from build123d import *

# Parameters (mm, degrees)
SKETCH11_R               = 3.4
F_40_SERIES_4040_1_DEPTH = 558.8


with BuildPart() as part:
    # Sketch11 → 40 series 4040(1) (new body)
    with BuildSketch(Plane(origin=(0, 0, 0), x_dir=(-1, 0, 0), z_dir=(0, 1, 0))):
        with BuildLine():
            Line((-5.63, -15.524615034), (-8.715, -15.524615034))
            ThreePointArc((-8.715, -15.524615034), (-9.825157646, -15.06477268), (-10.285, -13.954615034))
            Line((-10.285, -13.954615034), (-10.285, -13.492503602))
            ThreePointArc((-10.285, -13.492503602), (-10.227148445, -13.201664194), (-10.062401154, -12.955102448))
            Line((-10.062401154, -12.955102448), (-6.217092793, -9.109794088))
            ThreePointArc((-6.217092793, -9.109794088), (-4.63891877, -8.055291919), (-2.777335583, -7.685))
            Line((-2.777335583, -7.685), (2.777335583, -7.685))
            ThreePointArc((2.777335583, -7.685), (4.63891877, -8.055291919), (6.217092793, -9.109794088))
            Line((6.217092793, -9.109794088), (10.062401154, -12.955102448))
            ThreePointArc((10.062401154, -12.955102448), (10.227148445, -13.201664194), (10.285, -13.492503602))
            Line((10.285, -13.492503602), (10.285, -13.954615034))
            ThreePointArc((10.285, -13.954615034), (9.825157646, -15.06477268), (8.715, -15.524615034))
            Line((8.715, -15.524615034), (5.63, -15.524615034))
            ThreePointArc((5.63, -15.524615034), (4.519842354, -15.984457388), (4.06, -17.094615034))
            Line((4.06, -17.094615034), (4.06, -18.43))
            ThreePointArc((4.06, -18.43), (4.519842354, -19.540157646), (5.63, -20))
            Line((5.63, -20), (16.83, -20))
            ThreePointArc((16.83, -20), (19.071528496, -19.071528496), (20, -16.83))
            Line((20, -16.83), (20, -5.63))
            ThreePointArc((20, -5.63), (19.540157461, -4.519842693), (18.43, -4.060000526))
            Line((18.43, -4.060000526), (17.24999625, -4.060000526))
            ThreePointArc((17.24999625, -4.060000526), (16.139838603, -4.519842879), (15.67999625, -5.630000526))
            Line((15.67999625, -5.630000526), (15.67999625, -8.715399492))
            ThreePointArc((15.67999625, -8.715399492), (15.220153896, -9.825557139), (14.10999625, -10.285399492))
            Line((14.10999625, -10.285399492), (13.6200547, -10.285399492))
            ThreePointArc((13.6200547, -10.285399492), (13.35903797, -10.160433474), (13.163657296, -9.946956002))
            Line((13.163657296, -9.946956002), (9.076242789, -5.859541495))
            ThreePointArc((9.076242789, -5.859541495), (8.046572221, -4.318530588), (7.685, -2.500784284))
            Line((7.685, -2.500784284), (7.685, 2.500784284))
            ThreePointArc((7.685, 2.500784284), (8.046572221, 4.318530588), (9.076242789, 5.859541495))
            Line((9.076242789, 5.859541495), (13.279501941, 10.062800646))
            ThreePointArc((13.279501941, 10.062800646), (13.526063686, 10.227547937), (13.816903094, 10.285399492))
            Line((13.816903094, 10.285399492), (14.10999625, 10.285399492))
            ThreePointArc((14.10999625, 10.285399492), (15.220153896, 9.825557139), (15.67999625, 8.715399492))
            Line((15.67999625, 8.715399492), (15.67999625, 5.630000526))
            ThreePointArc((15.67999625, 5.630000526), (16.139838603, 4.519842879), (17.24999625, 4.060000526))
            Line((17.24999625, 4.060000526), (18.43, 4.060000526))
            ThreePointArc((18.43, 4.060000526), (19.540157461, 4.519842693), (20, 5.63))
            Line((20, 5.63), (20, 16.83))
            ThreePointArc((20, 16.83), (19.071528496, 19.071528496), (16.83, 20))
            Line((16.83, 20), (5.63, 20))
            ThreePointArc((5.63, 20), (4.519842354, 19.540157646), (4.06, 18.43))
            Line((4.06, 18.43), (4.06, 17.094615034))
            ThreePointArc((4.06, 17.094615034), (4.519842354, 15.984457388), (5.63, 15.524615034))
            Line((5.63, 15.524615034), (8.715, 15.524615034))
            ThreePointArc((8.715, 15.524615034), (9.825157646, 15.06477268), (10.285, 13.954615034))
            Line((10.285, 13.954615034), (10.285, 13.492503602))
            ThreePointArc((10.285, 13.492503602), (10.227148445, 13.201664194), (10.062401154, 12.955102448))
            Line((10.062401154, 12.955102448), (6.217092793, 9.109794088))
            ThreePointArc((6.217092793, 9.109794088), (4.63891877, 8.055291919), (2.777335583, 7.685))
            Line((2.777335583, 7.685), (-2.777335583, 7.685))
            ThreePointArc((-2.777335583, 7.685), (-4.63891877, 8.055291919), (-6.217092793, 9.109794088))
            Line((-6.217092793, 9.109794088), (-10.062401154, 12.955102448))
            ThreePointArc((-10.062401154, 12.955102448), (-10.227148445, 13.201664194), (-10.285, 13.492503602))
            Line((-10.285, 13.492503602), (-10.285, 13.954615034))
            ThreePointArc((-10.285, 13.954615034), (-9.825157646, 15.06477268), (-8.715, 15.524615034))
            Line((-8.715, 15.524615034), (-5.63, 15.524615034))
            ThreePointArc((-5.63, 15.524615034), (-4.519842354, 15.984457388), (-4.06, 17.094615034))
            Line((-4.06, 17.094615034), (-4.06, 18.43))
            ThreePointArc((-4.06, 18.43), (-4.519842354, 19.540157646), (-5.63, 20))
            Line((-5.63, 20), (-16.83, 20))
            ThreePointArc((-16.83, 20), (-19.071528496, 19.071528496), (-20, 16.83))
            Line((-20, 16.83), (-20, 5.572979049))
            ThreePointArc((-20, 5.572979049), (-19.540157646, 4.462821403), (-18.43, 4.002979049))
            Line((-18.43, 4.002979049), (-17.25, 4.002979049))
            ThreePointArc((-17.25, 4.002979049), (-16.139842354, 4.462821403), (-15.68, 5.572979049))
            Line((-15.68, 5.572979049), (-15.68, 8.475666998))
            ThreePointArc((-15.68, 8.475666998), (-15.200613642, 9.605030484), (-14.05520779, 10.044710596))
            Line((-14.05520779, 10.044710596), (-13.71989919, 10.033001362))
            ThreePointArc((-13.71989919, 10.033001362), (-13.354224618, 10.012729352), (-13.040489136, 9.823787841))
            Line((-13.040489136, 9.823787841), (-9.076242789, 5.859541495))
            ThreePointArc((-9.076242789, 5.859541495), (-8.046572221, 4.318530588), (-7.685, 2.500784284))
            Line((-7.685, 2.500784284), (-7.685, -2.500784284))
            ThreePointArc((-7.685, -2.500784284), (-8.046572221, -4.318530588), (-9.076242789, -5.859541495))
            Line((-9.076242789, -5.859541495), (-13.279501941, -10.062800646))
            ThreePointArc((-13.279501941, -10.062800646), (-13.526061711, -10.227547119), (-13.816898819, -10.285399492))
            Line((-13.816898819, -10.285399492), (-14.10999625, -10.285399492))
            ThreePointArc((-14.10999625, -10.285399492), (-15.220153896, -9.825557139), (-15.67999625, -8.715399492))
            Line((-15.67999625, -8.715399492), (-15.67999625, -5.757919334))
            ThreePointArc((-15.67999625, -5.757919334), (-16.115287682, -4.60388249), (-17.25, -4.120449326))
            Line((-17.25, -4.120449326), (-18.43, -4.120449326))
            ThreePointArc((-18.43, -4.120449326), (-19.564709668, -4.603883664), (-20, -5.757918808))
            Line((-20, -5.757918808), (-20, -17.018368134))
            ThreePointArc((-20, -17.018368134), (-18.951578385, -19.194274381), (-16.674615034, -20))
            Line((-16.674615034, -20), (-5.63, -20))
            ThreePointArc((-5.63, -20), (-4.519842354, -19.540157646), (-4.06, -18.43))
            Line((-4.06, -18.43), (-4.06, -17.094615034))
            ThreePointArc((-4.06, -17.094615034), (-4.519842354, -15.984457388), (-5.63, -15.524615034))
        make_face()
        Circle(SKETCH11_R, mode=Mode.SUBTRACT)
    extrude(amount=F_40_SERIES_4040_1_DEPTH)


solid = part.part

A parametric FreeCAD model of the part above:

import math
import FreeCAD as App
import Part
import Sketcher
from FreeCAD import Vector
Q = App.Units.Quantity

doc = App.newDocument("Part")
body = doc.addObject("PartDesign::Body", "Body")

# Sketch on XZ plane
sketch1 = body.newObject("Sketcher::SketchObject", "Sketch")
sketch1.AttachmentSupport = (doc.getObject("XZ_Plane"), [""])
sketch1.MapMode = "FlatFace"
sketch1.addGeometry([
    Part.LineSegment(Vector(5.63, -15.52, 0), Vector(8.71, -15.52, 0)),  # 0
    Part.ArcOfCircle(Part.Circle(Vector(8.71, -13.95, 0), Vector(0, 0, 1), 1.57), math.radians(-90), math.radians(0)),  # 1
    Part.LineSegment(Vector(10.29, -13.95, 0), Vector(10.29, -13.49, 0)),  # 2
    Part.ArcOfCircle(Part.Circle(Vector(9.52, -13.49, 0), Vector(0, 0, 1), 0.76), math.radians(0), math.radians(45)),  # 3
    Part.LineSegment(Vector(10.06, -12.96, 0), Vector(6.22, -9.11, 0)),  # 4
    Part.ArcOfCircle(Part.Circle(Vector(2.78, -12.55, 0), Vector(0, 0, 1), 4.86), math.radians(45), math.radians(90)),  # 5
    Part.LineSegment(Vector(2.78, -7.68, 0), Vector(-2.78, -7.68, 0)),  # 6
    Part.ArcOfCircle(Part.Circle(Vector(-2.78, -12.55, 0), Vector(0, 0, 1), 4.86), math.radians(90), math.radians(135)),  # 7
    Part.LineSegment(Vector(-6.22, -9.11, 0), Vector(-10.06, -12.96, 0)),  # 8
    Part.ArcOfCircle(Part.Circle(Vector(-9.52, -13.49, 0), Vector(0, 0, 1), 0.76), math.radians(135), math.radians(180)),  # 9
    Part.LineSegment(Vector(-10.29, -13.49, 0), Vector(-10.29, -13.95, 0)),  # 10
    Part.ArcOfCircle(Part.Circle(Vector(-8.71, -13.95, 0), Vector(0, 0, 1), 1.57), math.radians(-180), math.radians(-90)),  # 11
    Part.LineSegment(Vector(-8.71, -15.52, 0), Vector(-5.63, -15.52, 0)),  # 12
    Part.ArcOfCircle(Part.Circle(Vector(-5.63, -17.09, 0), Vector(0, 0, 1), 1.57), math.radians(0), math.radians(90)),  # 13
    Part.LineSegment(Vector(-4.06, -17.09, 0), Vector(-4.06, -18.43, 0)),  # 14
    Part.ArcOfCircle(Part.Circle(Vector(-5.63, -18.43, 0), Vector(0, 0, 1), 1.57), math.radians(-90), math.radians(0)),  # 15
    Part.LineSegment(Vector(-5.63, -20, 0), Vector(-16.83, -20, 0)),  # 16
    Part.ArcOfCircle(Part.Circle(Vector(-16.83, -16.83, 0), Vector(0, 0, 1), 3.17), math.radians(-180), math.radians(-90)),  # 17
    Part.LineSegment(Vector(-20, -16.83, 0), Vector(-20, -5.63, 0)),  # 18
    Part.ArcOfCircle(Part.Circle(Vector(-18.43, -5.63, 0), Vector(0, 0, 1), 1.57), math.radians(90), math.radians(180)),  # 19
    Part.LineSegment(Vector(-18.43, -4.06, 0), Vector(-17.25, -4.06, 0)),  # 20
    Part.ArcOfCircle(Part.Circle(Vector(-17.25, -5.63, 0), Vector(0, 0, 1), 1.57), math.radians(0), math.radians(90)),  # 21
    Part.LineSegment(Vector(-15.68, -5.63, 0), Vector(-15.68, -8.72, 0)),  # 22
    Part.ArcOfCircle(Part.Circle(Vector(-14.11, -8.72, 0), Vector(0, 0, 1), 1.57), math.radians(180), math.radians(270)),  # 23
    Part.LineSegment(Vector(-14.11, -10.29, 0), Vector(-13.62, -10.29, 0)),  # 24
    Part.ArcOfCircle(Part.Circle(Vector(-13.81, -9.55, 0), Vector(0, 0, 1), 0.76), math.radians(-75), math.radians(-31)),  # 25
    Part.LineSegment(Vector(-13.16, -9.95, 0), Vector(-9.08, -5.86, 0)),  # 26
    Part.ArcOfCircle(Part.Circle(Vector(-12.44, -2.5, 0), Vector(0, 0, 1), 4.75), math.radians(-45), math.radians(0)),  # 27
    Part.LineSegment(Vector(-7.68, -2.5, 0), Vector(-7.68, 2.5, 0)),  # 28
    Part.ArcOfCircle(Part.Circle(Vector(-12.44, 2.5, 0), Vector(0, 0, 1), 4.75), math.radians(0), math.radians(45)),  # 29
    Part.LineSegment(Vector(-9.08, 5.86, 0), Vector(-13.28, 10.06, 0)),  # 30
    Part.ArcOfCircle(Part.Circle(Vector(-13.82, 9.53, 0), Vector(0, 0, 1), 0.76), math.radians(45), math.radians(90)),  # 31
    Part.LineSegment(Vector(-13.82, 10.29, 0), Vector(-14.11, 10.29, 0)),  # 32
    Part.ArcOfCircle(Part.Circle(Vector(-14.11, 8.72, 0), Vector(0, 0, 1), 1.57), math.radians(90), math.radians(180)),  # 33
    Part.LineSegment(Vector(-15.68, 8.72, 0), Vector(-15.68, 5.63, 0)),  # 34
    Part.ArcOfCircle(Part.Circle(Vector(-17.25, 5.63, 0), Vector(0, 0, 1), 1.57), math.radians(-90), math.radians(0)),  # 35
    Part.LineSegment(Vector(-17.25, 4.06, 0), Vector(-18.43, 4.06, 0)),  # 36
    Part.ArcOfCircle(Part.Circle(Vector(-18.43, 5.63, 0), Vector(0, 0, 1), 1.57), math.radians(-180), math.radians(-90)),  # 37
    Part.LineSegment(Vector(-20, 5.63, 0), Vector(-20, 16.83, 0)),  # 38
    Part.ArcOfCircle(Part.Circle(Vector(-16.83, 16.83, 0), Vector(0, 0, 1), 3.17), math.radians(90), math.radians(180)),  # 39
    Part.LineSegment(Vector(-16.83, 20, 0), Vector(-5.63, 20, 0)),  # 40
    Part.ArcOfCircle(Part.Circle(Vector(-5.63, 18.43, 0), Vector(0, 0, 1), 1.57), math.radians(0), math.radians(90)),  # 41
    Part.LineSegment(Vector(-4.06, 18.43, 0), Vector(-4.06, 17.09, 0)),  # 42
    Part.ArcOfCircle(Part.Circle(Vector(-5.63, 17.09, 0), Vector(0, 0, 1), 1.57), math.radians(-90), math.radians(0)),  # 43
    Part.LineSegment(Vector(-5.63, 15.52, 0), Vector(-8.71, 15.52, 0)),  # 44
    Part.ArcOfCircle(Part.Circle(Vector(-8.71, 13.95, 0), Vector(0, 0, 1), 1.57), math.radians(90), math.radians(180)),  # 45
    Part.LineSegment(Vector(-10.29, 13.95, 0), Vector(-10.29, 13.49, 0)),  # 46
    Part.ArcOfCircle(Part.Circle(Vector(-9.52, 13.49, 0), Vector(0, 0, 1), 0.76), math.radians(180), math.radians(225)),  # 47
    Part.LineSegment(Vector(-10.06, 12.96, 0), Vector(-6.22, 9.11, 0)),  # 48
    Part.ArcOfCircle(Part.Circle(Vector(-2.78, 12.55, 0), Vector(0, 0, 1), 4.86), math.radians(-135), math.radians(-90)),  # 49
    Part.LineSegment(Vector(-2.78, 7.68, 0), Vector(2.78, 7.68, 0)),  # 50
    Part.ArcOfCircle(Part.Circle(Vector(2.78, 12.55, 0), Vector(0, 0, 1), 4.86), math.radians(-90), math.radians(-45)),  # 51
    Part.LineSegment(Vector(6.22, 9.11, 0), Vector(10.06, 12.96, 0)),  # 52
    Part.ArcOfCircle(Part.Circle(Vector(9.52, 13.49, 0), Vector(0, 0, 1), 0.76), math.radians(-45), math.radians(0)),  # 53
    Part.LineSegment(Vector(10.29, 13.49, 0), Vector(10.29, 13.95, 0)),  # 54
    Part.ArcOfCircle(Part.Circle(Vector(8.71, 13.95, 0), Vector(0, 0, 1), 1.57), math.radians(0), math.radians(90)),  # 55
    Part.LineSegment(Vector(8.71, 15.52, 0), Vector(5.63, 15.52, 0)),  # 56
    Part.ArcOfCircle(Part.Circle(Vector(5.63, 17.09, 0), Vector(0, 0, 1), 1.57), math.radians(-180), math.radians(-90)),  # 57
    Part.LineSegment(Vector(4.06, 17.09, 0), Vector(4.06, 18.43, 0)),  # 58
    Part.ArcOfCircle(Part.Circle(Vector(5.63, 18.43, 0), Vector(0, 0, 1), 1.57), math.radians(90), math.radians(180)),  # 59
    Part.LineSegment(Vector(5.63, 20, 0), Vector(16.83, 20, 0)),  # 60
    Part.ArcOfCircle(Part.Circle(Vector(16.83, 16.83, 0), Vector(0, 0, 1), 3.17), math.radians(0), math.radians(90)),  # 61
    Part.LineSegment(Vector(20, 16.83, 0), Vector(20, 5.57, 0)),  # 62
    Part.ArcOfCircle(Part.Circle(Vector(18.43, 5.57, 0), Vector(0, 0, 1), 1.57), math.radians(-90), math.radians(0)),  # 63
    Part.LineSegment(Vector(18.43, 4, 0), Vector(17.25, 4, 0)),  # 64
    Part.ArcOfCircle(Part.Circle(Vector(17.25, 5.57, 0), Vector(0, 0, 1), 1.57), math.radians(-180), math.radians(-90)),  # 65
    Part.LineSegment(Vector(15.68, 5.57, 0), Vector(15.68, 8.48, 0)),  # 66
    Part.ArcOfCircle(Part.Circle(Vector(14.11, 8.48, 0), Vector(0, 0, 1), 1.57), math.radians(0), math.radians(92)),  # 67
    Part.LineSegment(Vector(14.06, 10.04, 0), Vector(13.72, 10.03, 0)),  # 68
    Part.ArcOfCircle(Part.Circle(Vector(13.58, 9.29, 0), Vector(0, 0, 1), 0.76), math.radians(79), math.radians(135)),  # 69
    Part.LineSegment(Vector(13.04, 9.82, 0), Vector(9.08, 5.86, 0)),  # 70
    Part.ArcOfCircle(Part.Circle(Vector(12.44, 2.5, 0), Vector(0, 0, 1), 4.75), math.radians(135), math.radians(180)),  # 71
    Part.LineSegment(Vector(7.68, 2.5, 0), Vector(7.68, -2.5, 0)),  # 72
    Part.ArcOfCircle(Part.Circle(Vector(12.44, -2.5, 0), Vector(0, 0, 1), 4.75), math.radians(-180), math.radians(-135)),  # 73
    Part.LineSegment(Vector(9.08, -5.86, 0), Vector(13.28, -10.06, 0)),  # 74
    Part.ArcOfCircle(Part.Circle(Vector(13.82, -9.53, 0), Vector(0, 0, 1), 0.76), math.radians(-135), math.radians(-90)),  # 75
    Part.LineSegment(Vector(13.82, -10.29, 0), Vector(14.11, -10.29, 0)),  # 76
    Part.ArcOfCircle(Part.Circle(Vector(14.11, -8.72, 0), Vector(0, 0, 1), 1.57), math.radians(-90), math.radians(0)),  # 77
    Part.LineSegment(Vector(15.68, -8.72, 0), Vector(15.68, -5.76, 0)),  # 78
    Part.ArcOfCircle(Part.Circle(Vector(17.25, -5.69, 0), Vector(0, 0, 1), 1.57), math.radians(90), math.radians(182)),  # 79
    Part.LineSegment(Vector(17.25, -4.12, 0), Vector(18.43, -4.12, 0)),  # 80
    Part.ArcOfCircle(Part.Circle(Vector(18.43, -5.69, 0), Vector(0, 0, 1), 1.57), math.radians(-2), math.radians(90)),  # 81
    Part.LineSegment(Vector(20, -5.76, 0), Vector(20, -17.02, 0)),  # 82
    Part.ArcOfCircle(Part.Circle(Vector(16.84, -16.83, 0), Vector(0, 0, 1), 3.17), math.radians(-93), math.radians(-3)),  # 83
    Part.LineSegment(Vector(16.67, -20, 0), Vector(5.63, -20, 0)),  # 84
    Part.ArcOfCircle(Part.Circle(Vector(5.63, -18.43, 0), Vector(0, 0, 1), 1.57), math.radians(-180), math.radians(-90)),  # 85
    Part.LineSegment(Vector(4.06, -18.43, 0), Vector(4.06, -17.09, 0)),  # 86
    Part.ArcOfCircle(Part.Circle(Vector(5.63, -17.09, 0), Vector(0, 0, 1), 1.57), math.radians(90), math.radians(180)),  # 87
    Part.Circle(Vector(0, 0, 0), Vector(0, 0, 1), 3.4),  # 88
], False)
sketch1.addConstraint([
    Sketcher.Constraint("Tangent", 0, 2, 1, 1),
    Sketcher.Constraint("Tangent", 1, 2, 2, 1),
    Sketcher.Constraint("Tangent", 2, 2, 3, 1),
    Sketcher.Constraint("Tangent", 3, 2, 4, 1),
    Sketcher.Constraint("Tangent", 4, 2, 5, 1),
    Sketcher.Constraint("Tangent", 5, 2, 6, 1),
    Sketcher.Constraint("Tangent", 6, 2, 7, 1),
    Sketcher.Constraint("Tangent", 7, 2, 8, 1),
    Sketcher.Constraint("Tangent", 8, 2, 9, 1),
    Sketcher.Constraint("Tangent", 9, 2, 10, 1),
    Sketcher.Constraint("Tangent", 10, 2, 11, 1),
    Sketcher.Constraint("Tangent", 11, 2, 12, 1),
    Sketcher.Constraint("Tangent", 12, 2, 13, 2),
    Sketcher.Constraint("Tangent", 13, 1, 14, 1),
    Sketcher.Constraint("Tangent", 14, 2, 15, 2),
    Sketcher.Constraint("Tangent", 15, 1, 16, 1),
    Sketcher.Constraint("Tangent", 16, 2, 17, 2),
    Sketcher.Constraint("Tangent", 17, 1, 18, 1),
    Sketcher.Constraint("Tangent", 18, 2, 19, 2),
    Sketcher.Constraint("Tangent", 19, 1, 20, 1),
    Sketcher.Constraint("Tangent", 20, 2, 21, 2),
    Sketcher.Constraint("Tangent", 21, 1, 22, 1),
    Sketcher.Constraint("Tangent", 22, 2, 23, 1),
    Sketcher.Constraint("Tangent", 23, 2, 24, 1),
    Sketcher.Constraint("Coincident", 24, 2, 25, 1),
    Sketcher.Constraint("Coincident", 25, 2, 26, 1),
    Sketcher.Constraint("Tangent", 26, 2, 27, 1),
    Sketcher.Constraint("Tangent", 27, 2, 28, 1),
    Sketcher.Constraint("Tangent", 28, 2, 29, 1),
    Sketcher.Constraint("Tangent", 29, 2, 30, 1),
    Sketcher.Constraint("Tangent", 30, 2, 31, 1),
    Sketcher.Constraint("Tangent", 31, 2, 32, 1),
    Sketcher.Constraint("Tangent", 32, 2, 33, 1),
    Sketcher.Constraint("Tangent", 33, 2, 34, 1),
    Sketcher.Constraint("Tangent", 34, 2, 35, 2),
    Sketcher.Constraint("Tangent", 35, 1, 36, 1),
    Sketcher.Constraint("Tangent", 36, 2, 37, 2),
    Sketcher.Constraint("Tangent", 37, 1, 38, 1),
    Sketcher.Constraint("Tangent", 38, 2, 39, 2),
    Sketcher.Constraint("Tangent", 39, 1, 40, 1),
    Sketcher.Constraint("Tangent", 40, 2, 41, 2),
    Sketcher.Constraint("Tangent", 41, 1, 42, 1),
    Sketcher.Constraint("Tangent", 42, 2, 43, 2),
    Sketcher.Constraint("Tangent", 43, 1, 44, 1),
    Sketcher.Constraint("Tangent", 44, 2, 45, 1),
    Sketcher.Constraint("Tangent", 45, 2, 46, 1),
    Sketcher.Constraint("Tangent", 46, 2, 47, 1),
    Sketcher.Constraint("Tangent", 47, 2, 48, 1),
    Sketcher.Constraint("Tangent", 48, 2, 49, 1),
    Sketcher.Constraint("Tangent", 49, 2, 50, 1),
    Sketcher.Constraint("Tangent", 50, 2, 51, 1),
    Sketcher.Constraint("Tangent", 51, 2, 52, 1),
    Sketcher.Constraint("Tangent", 52, 2, 53, 1),
    Sketcher.Constraint("Tangent", 53, 2, 54, 1),
    Sketcher.Constraint("Tangent", 54, 2, 55, 1),
    Sketcher.Constraint("Tangent", 55, 2, 56, 1),
    Sketcher.Constraint("Tangent", 56, 2, 57, 2),
    Sketcher.Constraint("Tangent", 57, 1, 58, 1),
    Sketcher.Constraint("Tangent", 58, 2, 59, 2),
    Sketcher.Constraint("Tangent", 59, 1, 60, 1),
    Sketcher.Constraint("Tangent", 60, 2, 61, 2),
    Sketcher.Constraint("Tangent", 61, 1, 62, 1),
    Sketcher.Constraint("Tangent", 62, 2, 63, 2),
    Sketcher.Constraint("Tangent", 63, 1, 64, 1),
    Sketcher.Constraint("Tangent", 64, 2, 65, 2),
    Sketcher.Constraint("Tangent", 65, 1, 66, 1),
    Sketcher.Constraint("Tangent", 66, 2, 67, 1),
    Sketcher.Constraint("Tangent", 67, 2, 68, 1),
    Sketcher.Constraint("Coincident", 68, 2, 69, 1),
    Sketcher.Constraint("Tangent", 69, 2, 70, 1),
    Sketcher.Constraint("Tangent", 70, 2, 71, 1),
    Sketcher.Constraint("Tangent", 71, 2, 72, 1),
    Sketcher.Constraint("Tangent", 72, 2, 73, 1),
    Sketcher.Constraint("Tangent", 73, 2, 74, 1),
    Sketcher.Constraint("Tangent", 74, 2, 75, 1),
    Sketcher.Constraint("Coincident", 75, 2, 76, 1),
    Sketcher.Constraint("Tangent", 76, 2, 77, 1),
    Sketcher.Constraint("Tangent", 77, 2, 78, 1),
    Sketcher.Constraint("Coincident", 78, 2, 79, 2),
    Sketcher.Constraint("Coincident", 79, 1, 80, 1),
    Sketcher.Constraint("Coincident", 80, 2, 81, 2),
    Sketcher.Constraint("Coincident", 81, 1, 82, 1),
    Sketcher.Constraint("Coincident", 82, 2, 83, 2),
    Sketcher.Constraint("Coincident", 83, 1, 84, 1),
    Sketcher.Constraint("Tangent", 84, 2, 85, 2),
    Sketcher.Constraint("Tangent", 85, 1, 86, 1),
    Sketcher.Constraint("Tangent", 86, 2, 87, 2),
    Sketcher.Constraint("Tangent", 87, 1, 0, 1),
    Sketcher.Constraint("Horizontal", 0),
    Sketcher.Constraint("Vertical", 2),
    Sketcher.Constraint("Horizontal", 6),
    Sketcher.Constraint("Vertical", 10),
    Sketcher.Constraint("Horizontal", 12),
    Sketcher.Constraint("Vertical", 14),
    Sketcher.Constraint("Horizontal", 16),
    Sketcher.Constraint("Vertical", 18),
    Sketcher.Constraint("Horizontal", 20),
    Sketcher.Constraint("Vertical", 22),
    Sketcher.Constraint("Horizontal", 24),
    Sketcher.Constraint("Vertical", 28),
    Sketcher.Constraint("Horizontal", 32),
    Sketcher.Constraint("Vertical", 34),
    Sketcher.Constraint("Horizontal", 36),
    Sketcher.Constraint("Vertical", 38),
    Sketcher.Constraint("Horizontal", 40),
    Sketcher.Constraint("Vertical", 42),
    Sketcher.Constraint("Horizontal", 44),
    Sketcher.Constraint("Vertical", 46),
    Sketcher.Constraint("Horizontal", 50),
    Sketcher.Constraint("Vertical", 54),
    Sketcher.Constraint("Horizontal", 56),
    Sketcher.Constraint("Vertical", 58),
    Sketcher.Constraint("Horizontal", 60),
    Sketcher.Constraint("Vertical", 62),
    Sketcher.Constraint("Horizontal", 64),
    Sketcher.Constraint("Vertical", 66),
    Sketcher.Constraint("Vertical", 72),
    Sketcher.Constraint("Horizontal", 76),
    Sketcher.Constraint("Vertical", 78),
    Sketcher.Constraint("Horizontal", 80),
    Sketcher.Constraint("Vertical", 82),
    Sketcher.Constraint("Horizontal", 84),
    Sketcher.Constraint("Vertical", 86),
    Sketcher.Constraint("Coincident", 88, 3, -1, 1),
    Sketcher.Constraint("Equal", 5, 7),
    Sketcher.Constraint("Equal", 3, 9),
    Sketcher.Constraint("Equal", 1, 11),
    Sketcher.Constraint("Equal", 11, 13),
    Sketcher.Constraint("Equal", 13, 15),
    Sketcher.Constraint("Equal", 15, 19),
    Sketcher.Constraint("Equal", 19, 21),
    Sketcher.Constraint("Equal", 21, 23),
    Sketcher.Constraint("Equal", 9, 25),
    Sketcher.Constraint("Equal", 27, 29),
    Sketcher.Constraint("Equal", 25, 31),
    Sketcher.Constraint("Equal", 23, 33),
    Sketcher.Constraint("Equal", 33, 35),
    Sketcher.Constraint("Equal", 35, 37),
    Sketcher.Constraint("Equal", 17, 39),
    Sketcher.Constraint("Equal", 37, 41),
    Sketcher.Constraint("Equal", 41, 43),
    Sketcher.Constraint("Equal", 43, 45),
    Sketcher.Constraint("Equal", 31, 47),
    Sketcher.Constraint("Equal", 7, 49),
    Sketcher.Constraint("Equal", 49, 51),
    Sketcher.Constraint("Equal", 47, 53),
    Sketcher.Constraint("Equal", 45, 55),
    Sketcher.Constraint("Equal", 55, 57),
    Sketcher.Constraint("Equal", 57, 59),
    Sketcher.Constraint("Equal", 39, 61),
    Sketcher.Constraint("Equal", 59, 63),
    Sketcher.Constraint("Equal", 63, 65),
    Sketcher.Constraint("Equal", 65, 67),
    Sketcher.Constraint("Equal", 53, 69),
    Sketcher.Constraint("Equal", 29, 71),
    Sketcher.Constraint("Equal", 71, 73),
    Sketcher.Constraint("Equal", 69, 75),
    Sketcher.Constraint("Equal", 67, 77),
    Sketcher.Constraint("Equal", 77, 79),
    Sketcher.Constraint("Equal", 79, 81),
    Sketcher.Constraint("Equal", 61, 83),
    Sketcher.Constraint("Equal", 81, 85),
    Sketcher.Constraint("Equal", 85, 87),
    Sketcher.Constraint("Symmetric", 1, 3, 45, 3, -1, 1),
    Sketcher.Constraint("Symmetric", 5, 3, 49, 3, -1, 1),
    Sketcher.Constraint("Symmetric", 9, 3, 53, 3, -1, 1),
    Sketcher.Constraint("Symmetric", 13, 3, 57, 3, -1, 1),
    Sketcher.Constraint("Symmetric", 17, 3, 61, 3, -1, 1),
    Sketcher.Constraint("Symmetric", 27, 3, 71, 3, -1, 1),
    Sketcher.Constraint("Symmetric", 31, 3, 75, 3, -1, 1),
    Sketcher.Constraint("Symmetric", 41, 3, 85, 3, -1, 1),
    Sketcher.Constraint("Symmetric", 3, 3, 9, 3, -2),
    Sketcher.Constraint("Symmetric", 43, 3, 57, 3, -2),
    Sketcher.Constraint("Symmetric", 39, 3, 61, 3, -2),
    Sketcher.Constraint("Symmetric", 23, 3, 77, 3, -2),
    Sketcher.Constraint("Symmetric", 48, 2, 51, 2, -2),
    Sketcher.Constraint("Symmetric", 29, 2, 70, 2, -2),
    Sketcher.Constraint("Symmetric", 26, 2, 73, 2, -2),
    Sketcher.Constraint("Symmetric", 21, 3, 35, 3, -1),
    Sketcher.Constraint("Perpendicular", 4, 8),
    Sketcher.Constraint("Parallel", 8, 26),
    Sketcher.Constraint("Perpendicular", 26, 30),
    Sketcher.Constraint("Horizontal", 78, 2, 81, 1),
    Sketcher.Constraint("Vertical", 64, 2, 79, 1),
    Sketcher.Constraint("Vertical", 63, 1, 80, 2),
    Sketcher.Constraint("Vertical", 62, 2, 81, 1),
    Sketcher.Constraint("Equal", 60, 18),
    Sketcher.Constraint("Diameter", 88, Q("6.8 mm")),
    Sketcher.Constraint("Angle", 68, Q("-178 deg")),
    Sketcher.Constraint("Radius", 1, Q("1.57 mm")),
    Sketcher.Constraint("Radius", 3, Q("0.76 mm")),
    Sketcher.Constraint("Radius", 17, Q("3.17 mm")),
    Sketcher.Constraint("Radius", 27, Q("4.75 mm")),
    Sketcher.Constraint("DistanceX", 16, 2, 16, 1, Q("11.2 mm")),
    Sketcher.Constraint("DistanceY", 15, 1, -1, 1, Q("20 mm")),
    Sketcher.Constraint("DistanceX", 17, 1, -1, 1, Q("20 mm")),
    Sketcher.Constraint("DistanceX", 64, 2, 64, 1, Q("1.18 mm")),
    Sketcher.Constraint("DistanceX", 0, 1, 0, 2, Q("3.085 mm")),
    Sketcher.Constraint("Radius", 5, Q("4.864551 mm")),
    Sketcher.Constraint("DistanceY", 22, 2, 22, 1, Q("3.085399 mm")),
    Sketcher.Constraint("DistanceX", 27, 3, -1, 1, Q("12.435 mm")),
    Sketcher.Constraint("DistanceY", 5, 2, -1, 1, Q("7.685 mm")),
    Sketcher.Constraint("DistanceY", -1, 1, 68, 2, Q("10.033001 mm")),
    Sketcher.Constraint("DistanceX", 6, 2, 6, 1, Q("5.554671 mm")),
    Sketcher.Constraint("DistanceX", 24, 1, 24, 2, Q("0.489942 mm")),
    Sketcher.Constraint("DistanceY", 2, 1, 2, 2, Q("0.462111 mm")),
    Sketcher.Constraint("DistanceY", 28, 1, 28, 2, Q("5.001569 mm")),
    Sketcher.Constraint("DistanceY", 62, 2, 62, 1, Q("11.257021 mm")),
    Sketcher.Constraint("DistanceY", 78, 1, 78, 2, Q("2.95748 mm")),
    Sketcher.Constraint("DistanceY", 82, 2, 82, 1, Q("11.260449 mm")),
    Sketcher.Constraint("DistanceX", -1, 1, 68, 2, Q("13.719899 mm")),
    Sketcher.Constraint("DistanceX", -1, 1, 75, 2, Q("13.816899 mm")),
    Sketcher.Constraint("DistanceX", 20, 1, 20, 2, Q("1.180004 mm")),
    Sketcher.Constraint("DistanceX", 84, 2, 84, 1, Q("11.044615 mm")),
    Sketcher.Constraint("DistanceX", 25, 3, -1, 1, Q("13.811732 mm")),
    Sketcher.Constraint("DistanceY", 79, 3, -1, 1, Q("5.690449 mm")),
])
pad1 = body.newObject("PartDesign::Pad", "Pad")
pad1.Profile = sketch1
pad1.Length = 558.8
pad1.Reversed = True

doc.recompute()
